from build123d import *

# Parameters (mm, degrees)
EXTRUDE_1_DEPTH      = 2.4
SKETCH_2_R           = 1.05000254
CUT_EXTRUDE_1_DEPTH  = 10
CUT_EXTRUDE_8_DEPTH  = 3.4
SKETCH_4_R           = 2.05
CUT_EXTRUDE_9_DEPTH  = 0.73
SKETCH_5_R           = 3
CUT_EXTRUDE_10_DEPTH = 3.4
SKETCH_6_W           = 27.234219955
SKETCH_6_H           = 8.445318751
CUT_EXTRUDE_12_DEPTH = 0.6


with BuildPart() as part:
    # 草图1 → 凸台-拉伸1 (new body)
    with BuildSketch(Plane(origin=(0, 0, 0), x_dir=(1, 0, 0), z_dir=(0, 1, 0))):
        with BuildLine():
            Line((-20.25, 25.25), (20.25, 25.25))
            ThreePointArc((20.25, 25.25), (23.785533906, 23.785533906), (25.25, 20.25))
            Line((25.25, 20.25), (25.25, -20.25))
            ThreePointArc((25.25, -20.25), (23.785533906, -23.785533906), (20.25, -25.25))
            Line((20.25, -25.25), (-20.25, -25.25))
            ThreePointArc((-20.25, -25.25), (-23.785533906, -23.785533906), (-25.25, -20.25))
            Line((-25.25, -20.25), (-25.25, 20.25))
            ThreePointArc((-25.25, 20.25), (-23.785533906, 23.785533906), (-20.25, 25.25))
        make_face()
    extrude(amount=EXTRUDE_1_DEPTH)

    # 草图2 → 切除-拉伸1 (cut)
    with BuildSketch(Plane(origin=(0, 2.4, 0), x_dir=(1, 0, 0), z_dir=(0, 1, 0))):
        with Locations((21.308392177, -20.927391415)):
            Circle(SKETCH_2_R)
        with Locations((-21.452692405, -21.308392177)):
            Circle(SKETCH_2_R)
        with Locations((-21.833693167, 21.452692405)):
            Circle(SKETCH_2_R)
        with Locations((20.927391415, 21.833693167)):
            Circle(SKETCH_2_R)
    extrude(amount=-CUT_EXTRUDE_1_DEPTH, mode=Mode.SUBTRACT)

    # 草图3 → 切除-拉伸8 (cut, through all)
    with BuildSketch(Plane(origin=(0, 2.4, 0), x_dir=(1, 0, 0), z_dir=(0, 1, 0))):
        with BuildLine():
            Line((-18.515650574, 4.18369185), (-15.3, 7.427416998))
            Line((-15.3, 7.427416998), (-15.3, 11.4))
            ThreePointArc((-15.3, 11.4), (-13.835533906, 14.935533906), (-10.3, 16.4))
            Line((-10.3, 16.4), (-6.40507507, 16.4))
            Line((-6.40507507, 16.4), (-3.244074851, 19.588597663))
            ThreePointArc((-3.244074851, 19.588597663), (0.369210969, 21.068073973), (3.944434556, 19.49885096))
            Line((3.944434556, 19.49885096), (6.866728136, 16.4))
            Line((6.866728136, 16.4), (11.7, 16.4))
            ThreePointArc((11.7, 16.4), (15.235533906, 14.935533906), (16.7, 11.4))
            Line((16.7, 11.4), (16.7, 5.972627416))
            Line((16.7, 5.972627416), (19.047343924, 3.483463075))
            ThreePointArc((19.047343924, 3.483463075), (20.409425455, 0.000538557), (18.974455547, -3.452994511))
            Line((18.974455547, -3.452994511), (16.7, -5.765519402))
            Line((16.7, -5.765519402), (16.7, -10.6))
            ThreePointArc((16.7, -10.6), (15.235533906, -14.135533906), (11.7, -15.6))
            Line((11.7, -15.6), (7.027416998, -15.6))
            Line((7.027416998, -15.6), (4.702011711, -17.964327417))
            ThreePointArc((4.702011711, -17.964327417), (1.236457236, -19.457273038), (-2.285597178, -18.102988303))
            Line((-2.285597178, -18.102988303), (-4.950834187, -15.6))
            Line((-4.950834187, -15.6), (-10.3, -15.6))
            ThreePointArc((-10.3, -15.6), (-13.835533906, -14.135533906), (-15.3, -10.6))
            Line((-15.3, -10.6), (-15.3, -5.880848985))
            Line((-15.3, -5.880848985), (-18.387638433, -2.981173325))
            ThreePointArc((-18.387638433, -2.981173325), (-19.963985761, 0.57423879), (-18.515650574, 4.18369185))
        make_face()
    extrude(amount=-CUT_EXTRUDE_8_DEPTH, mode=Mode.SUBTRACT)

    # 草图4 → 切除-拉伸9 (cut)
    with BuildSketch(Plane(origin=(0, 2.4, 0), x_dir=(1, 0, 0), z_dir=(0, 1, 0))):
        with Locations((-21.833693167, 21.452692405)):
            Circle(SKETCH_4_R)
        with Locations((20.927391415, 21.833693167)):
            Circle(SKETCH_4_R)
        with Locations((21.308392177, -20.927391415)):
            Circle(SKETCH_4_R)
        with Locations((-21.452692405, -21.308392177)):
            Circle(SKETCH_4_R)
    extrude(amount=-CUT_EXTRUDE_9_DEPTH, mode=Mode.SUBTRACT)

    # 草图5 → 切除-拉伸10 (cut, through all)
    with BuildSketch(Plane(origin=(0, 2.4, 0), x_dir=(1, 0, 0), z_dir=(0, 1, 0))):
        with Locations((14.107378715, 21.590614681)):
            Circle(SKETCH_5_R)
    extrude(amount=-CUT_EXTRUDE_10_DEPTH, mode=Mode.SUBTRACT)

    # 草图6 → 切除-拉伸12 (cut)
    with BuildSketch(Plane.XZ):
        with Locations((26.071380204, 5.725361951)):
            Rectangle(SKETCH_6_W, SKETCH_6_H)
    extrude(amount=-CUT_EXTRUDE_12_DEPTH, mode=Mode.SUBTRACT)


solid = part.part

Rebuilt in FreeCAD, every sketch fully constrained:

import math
import FreeCAD as App
import Part
import Sketcher
Q = App.Units.Quantity


def add_polygon(sketch, points):
    """Adds a closed chain of lines whose ends are joined by coincident constraints."""
    first, n = sketch.GeometryCount, len(points)
    for a, b in zip(points, points[1:] + points[:1]):
        sketch.addGeometry(Part.LineSegment(App.Vector(*a, 0), App.Vector(*b, 0)), False)
    for i in range(n):
        sketch.addConstraint(Sketcher.Constraint("Coincident", first + i, 2, first + (i + 1) % n, 1))

doc = App.newDocument("Part")
body = doc.addObject("PartDesign::Body", "Body")

# Sketch on XZ plane
sketch1 = body.newObject("Sketcher::SketchObject", "Sketch")
sketch1.AttachmentSupport = (doc.getObject("XZ_Plane"), [""])
sketch1.MapMode = "FlatFace"
sketch1.addGeometry([
    Part.LineSegment(App.Vector(20, -25, 0), App.Vector(-20, -25, 0)),  # 0
    Part.ArcOfCircle(Part.Circle(App.Vector(-20, -20, 0), App.Vector(0, 0, 1), 5), math.radians(180), math.radians(270)),  # 1
    Part.LineSegment(App.Vector(-25, -20, 0), App.Vector(-25, 20, 0)),  # 2
    Part.ArcOfCircle(Part.Circle(App.Vector(-20, 20, 0), App.Vector(0, 0, 1), 5), math.radians(90), math.radians(180)),  # 3
    Part.LineSegment(App.Vector(-20, 25, 0), App.Vector(20, 25, 0)),  # 4
    Part.ArcOfCircle(Part.Circle(App.Vector(20, 20, 0), App.Vector(0, 0, 1), 5), math.radians(0), math.radians(90)),  # 5
    Part.LineSegment(App.Vector(25, 20, 0), App.Vector(25, -20, 0)),  # 6
    Part.ArcOfCircle(Part.Circle(App.Vector(20, -20, 0), App.Vector(0, 0, 1), 5), math.radians(-90), math.radians(0)),  # 7
], False)
sketch1.addConstraint([
    Sketcher.Constraint("Tangent", 0, 2, 1, 2),
    Sketcher.Constraint("Tangent", 1, 1, 2, 1),
    Sketcher.Constraint("Tangent", 2, 2, 3, 2),
    Sketcher.Constraint("Tangent", 3, 1, 4, 1),
    Sketcher.Constraint("Tangent", 4, 2, 5, 2),
    Sketcher.Constraint("Tangent", 5, 1, 6, 1),
    Sketcher.Constraint("Tangent", 6, 2, 7, 2),
    Sketcher.Constraint("Tangent", 7, 1, 0, 1),
    Sketcher.Constraint("Horizontal", 0),
    Sketcher.Constraint("Vertical", 2),
    Sketcher.Constraint("Horizontal", 4),
    Sketcher.Constraint("Vertical", 6),
    Sketcher.Constraint("Equal", 1, 3),
    Sketcher.Constraint("Equal", 3, 5),
    Sketcher.Constraint("Equal", 5, 7),
    Sketcher.Constraint("Symmetric", 1, 3, 5, 3, -1, 1),
    Sketcher.Constraint("Equal", 4, 2),
    Sketcher.Constraint("Radius", 1, Q("5 mm")),
    Sketcher.Constraint("DistanceX", 0, 2, 0, 1, Q("40.5 mm")),
])
pad1 = body.newObject("PartDesign::Pad", "Pad")
pad1.Profile = sketch1
pad1.Length = 2.4
pad1.Reversed = True

# Sketch on XZ plane
sketch2 = body.newObject("Sketcher::SketchObject", "Sketch001")
sketch2.AttachmentSupport = (doc.getObject("XZ_Plane"), [""])
sketch2.MapMode = "FlatFace"
sketch2.AttachmentOffset = App.Placement(App.Vector(0, 0, -2.4), App.Rotation())
sketch2.addGeometry([
    Part.Circle(App.Vector(21.3, 20.9, 0), App.Vector(0, 0, 1), 1.1),
    Part.Circle(App.Vector(-21.5, 21.3, 0), App.Vector(0, 0, 1), 1.1),
    Part.Circle(App.Vector(-21.8, -21.5, 0), App.Vector(0, 0, 1), 1.1),
    Part.Circle(App.Vector(20.9, -21.8, 0), App.Vector(0, 0, 1), 1.1),
], False)
sketch2.addConstraint([
    Sketcher.Constraint("Equal", 0, 1),
    Sketcher.Constraint("Equal", 1, 2),
    Sketcher.Constraint("Equal", 2, 3),
    Sketcher.Constraint("Diameter", 0, Q("2.100005 mm")),
    Sketcher.Constraint("DistanceY", 0, 3, 1, 3, Q("0.381001 mm")),
    Sketcher.Constraint("DistanceX", 2, 3, 1, 3, Q("0.381001 mm")),
    Sketcher.Constraint("DistanceX", 3, 3, 0, 3, Q("0.381001 mm")),
    Sketcher.Constraint("DistanceY", 3, 3, 2, 3, Q("0.381001 mm")),
    Sketcher.Constraint("DistanceY", -1, 1, 0, 3, Q("20.927391 mm")),
    Sketcher.Constraint("DistanceX", -1, 1, 3, 3, Q("20.927391 mm")),
    Sketcher.Constraint("DistanceX", 1, 3, -1, 1, Q("21.452692 mm")),
    Sketcher.Constraint("DistanceY", 2, 3, -1, 1, Q("21.452692 mm")),
])
pocket1 = body.newObject("PartDesign::Pocket", "Pocket")
pocket1.Profile = sketch2
pocket1.Length = 10
pocket1.Reversed = True

# Sketch on XZ plane
sketch3 = body.newObject("Sketcher::SketchObject", "Sketch002")
sketch3.AttachmentSupport = (doc.getObject("XZ_Plane"), [""])
sketch3.MapMode = "FlatFace"
sketch3.AttachmentOffset = App.Placement(App.Vector(0, 0, -2.4), App.Rotation())
sketch3.addGeometry([
    Part.LineSegment(App.Vector(-15.3, -7.4, 0), App.Vector(-18.5, -4.2, 0)),  # 0
    Part.ArcOfCircle(Part.Circle(App.Vector(-15, -0.7, 0), App.Vector(0, 0, 1), 5), math.radians(133), math.radians(225)),  # 1
    Part.LineSegment(App.Vector(-18.4, 3, 0), App.Vector(-15.3, 5.9, 0)),  # 2
    Part.LineSegment(App.Vector(-15.3, 5.9, 0), App.Vector(-15.3, 10.6, 0)),  # 3
    Part.ArcOfCircle(Part.Circle(App.Vector(-10.3, 10.6, 0), App.Vector(0, 0, 1), 5), math.radians(90), math.radians(180)),  # 4
    Part.LineSegment(App.Vector(-10.3, 15.6, 0), App.Vector(-5, 15.6, 0)),  # 5
    Part.LineSegment(App.Vector(-5, 15.6, 0), App.Vector(-2.3, 18.1, 0)),  # 6
    Part.ArcOfCircle(Part.Circle(App.Vector(1.1, 14.5, 0), App.Vector(0, 0, 1), 5), math.radians(45), math.radians(133)),  # 7
    Part.LineSegment(App.Vector(4.7, 18, 0), App.Vector(7, 15.6, 0)),  # 8
    Part.LineSegment(App.Vector(7, 15.6, 0), App.Vector(11.7, 15.6, 0)),  # 9
    Part.ArcOfCircle(Part.Circle(App.Vector(11.7, 10.6, 0), App.Vector(0, 0, 1), 5), math.radians(0), math.radians(90)),  # 10
    Part.LineSegment(App.Vector(16.7, 10.6, 0), App.Vector(16.7, 5.8, 0)),  # 11
    Part.LineSegment(App.Vector(16.7, 5.8, 0), App.Vector(19, 3.5, 0)),  # 12
    Part.ArcOfCircle(Part.Circle(App.Vector(15.4, -0.1, 0), App.Vector(0, 0, 1), 5), math.radians(-43), math.radians(45)),  # 13
    Part.LineSegment(App.Vector(19, -3.5, 0), App.Vector(16.7, -6, 0)),  # 14
    Part.LineSegment(App.Vector(16.7, -6, 0), App.Vector(16.7, -11.4, 0)),  # 15
    Part.ArcOfCircle(Part.Circle(App.Vector(11.7, -11.4, 0), App.Vector(0, 0, 1), 5), math.radians(-90), math.radians(0)),  # 16
    Part.LineSegment(App.Vector(11.7, -16.4, 0), App.Vector(6.9, -16.4, 0)),  # 17
    Part.LineSegment(App.Vector(6.9, -16.4, 0), App.Vector(3.9, -19.5, 0)),  # 18
    Part.ArcOfCircle(Part.Circle(App.Vector(0.3, -16.1, 0), App.Vector(0, 0, 1), 5), math.radians(-135), math.radians(-43)),  # 19
    Part.LineSegment(App.Vector(-3.2, -19.6, 0), App.Vector(-6.4, -16.4, 0)),  # 20
    Part.LineSegment(App.Vector(-6.4, -16.4, 0), App.Vector(-10.3, -16.4, 0)),  # 21
    Part.ArcOfCircle(Part.Circle(App.Vector(-10.3, -11.4, 0), App.Vector(0, 0, 1), 5), math.radians(180), math.radians(270)),  # 22
    Part.LineSegment(App.Vector(-15.3, -11.4, 0), App.Vector(-15.3, -7.4, 0)),  # 23
], False)
sketch3.addConstraint([
    Sketcher.Constraint("Tangent", 0, 2, 1, 2),
    Sketcher.Constraint("Tangent", 1, 1, 2, 1),
    Sketcher.Constraint("Coincident", 2, 2, 3, 1),
    Sketcher.Constraint("Tangent", 3, 2, 4, 2),
    Sketcher.Constraint("Tangent", 4, 1, 5, 1),
    Sketcher.Constraint("Coincident", 5, 2, 6, 1),
    Sketcher.Constraint("Tangent", 6, 2, 7, 2),
    Sketcher.Constraint("Tangent", 7, 1, 8, 1),
    Sketcher.Constraint("Coincident", 8, 2, 9, 1),
    Sketcher.Constraint("Tangent", 9, 2, 10, 2),
    Sketcher.Constraint("Tangent", 10, 1, 11, 1),
    Sketcher.Constraint("Coincident", 11, 2, 12, 1),
    Sketcher.Constraint("Tangent", 12, 2, 13, 2),
    Sketcher.Constraint("Tangent", 13, 1, 14, 1),
    Sketcher.Constraint("Coincident", 14, 2, 15, 1),
    Sketcher.Constraint("Tangent", 15, 2, 16, 2),
    Sketcher.Constraint("Tangent", 16, 1, 17, 1),
    Sketcher.Constraint("Coincident", 17, 2, 18, 1),
    Sketcher.Constraint("Tangent", 18, 2, 19, 2),
    Sketcher.Constraint("Tangent", 19, 1, 20, 1),
    Sketcher.Constraint("Coincident", 20, 2, 21, 1),
    Sketcher.Constraint("Tangent", 21, 2, 22, 2),
    Sketcher.Constraint("Tangent", 22, 1, 23, 1),
    Sketcher.Constraint("Coincident", 23, 2, 0, 1),
    Sketcher.Constraint("Vertical", 3),
    Sketcher.Constraint("Horizontal", 5),
    Sketcher.Constraint("Horizontal", 9),
    Sketcher.Constraint("Vertical", 11),
    Sketcher.Constraint("Vertical", 15),
    Sketcher.Constraint("Horizontal", 17),
    Sketcher.Constraint("Horizontal", 21),
    Sketcher.Constraint("Vertical", 23),
    Sketcher.Constraint("Equal", 1, 4),
    Sketcher.Constraint("Equal", 4, 7),
    Sketcher.Constraint("Equal", 7, 10),
    Sketcher.Constraint("Equal", 10, 13),
    Sketcher.Constraint("Equal", 13, 16),
    Sketcher.Constraint("Equal", 16, 19),
    Sketcher.Constraint("Equal", 19, 22),
    Sketcher.Constraint("Parallel", 2, 6),
    Sketcher.Constraint("Parallel", 8, 12),
    Sketcher.Constraint("Parallel", 14, 18),
    Sketcher.Constraint("Parallel", 0, 20),
    Sketcher.Constraint("Horizontal", 4, 3, 10, 3),
    Sketcher.Constraint("Horizontal", 16, 3, 22, 3),
    Sketcher.Constraint("Vertical", 10, 3, 16, 3),
    Sketcher.Constraint("Vertical", 4, 3, 22, 3),
    Sketcher.Constraint("Radius", 1, Q("5 mm")),
    Sketcher.Constraint("DistanceX", 4, 3, 10, 3, Q("22 mm")),
    Sketcher.Constraint("DistanceY", 16, 3, 10, 3, Q("22 mm")),
    Sketcher.Constraint("DistanceX", 4, 3, -1, 1, Q("10.3 mm")),
    Sketcher.Constraint("DistanceY", -1, 1, 4, 3, Q("10.6 mm")),
    Sketcher.Constraint("DistanceX", 20, 2, 19, 1, Q("3.161 mm")),
    Sketcher.Constraint("DistanceX", 17, 2, 17, 1, Q("4.833272 mm")),
    Sketcher.Constraint("DistanceY", 3, 1, 3, 2, Q("4.719151 mm")),
    Sketcher.Constraint("DistanceY", 11, 2, 11, 1, Q("4.834481 mm")),
    Sketcher.Constraint("DistanceX", -1, 1, 13, 3, Q("15.409701 mm")),
    Sketcher.Constraint("Distance", 0, Q("4.567512 mm")),
    Sketcher.Constraint("DistanceX", 5, 1, 5, 2, Q("5.349166 mm")),
    Sketcher.Constraint("DistanceX", 9, 1, 9, 2, Q("4.672583 mm")),
    Sketcher.Constraint("DistanceX", 21, 2, 21, 1, Q("3.894925 mm")),
    Sketcher.Constraint("DistanceY", 15, 2, 15, 1, Q("5.427373 mm")),
    Sketcher.Constraint("DistanceY", 23, 1, 23, 2, Q("3.972583 mm")),
    Sketcher.Constraint("DistanceX", 0, 2, -1, 1, Q("18.515651 mm")),
])
pocket2 = body.newObject("PartDesign::Pocket", "Pocket001")
pocket2.Profile = sketch3
pocket2.Type = "ThroughAll"
pocket2.Reversed = True

# Sketch on XZ plane
sketch4 = body.newObject("Sketcher::SketchObject", "Sketch003")
sketch4.AttachmentSupport = (doc.getObject("XZ_Plane"), [""])
sketch4.MapMode = "FlatFace"
sketch4.AttachmentOffset = App.Placement(App.Vector(0, 0, -2.4), App.Rotation())
sketch4.addGeometry([
    Part.Circle(App.Vector(-21.8, -21.5, 0), App.Vector(0, 0, 1), 2),
    Part.Circle(App.Vector(20.9, -21.8, 0), App.Vector(0, 0, 1), 2),
    Part.Circle(App.Vector(21.3, 20.9, 0), App.Vector(0, 0, 1), 2),
    Part.Circle(App.Vector(-21.5, 21.3, 0), App.Vector(0, 0, 1), 2),
], False)
sketch4.addConstraint([
    Sketcher.Constraint("Equal", 0, 1),
    Sketcher.Constraint("Equal", 1, 2),
    Sketcher.Constraint("Equal", 2, 3),
    Sketcher.Constraint("Diameter", 0, Q("4.1 mm")),
    Sketcher.Constraint("DistanceY", 1, 3, 0, 3, Q("0.381001 mm")),
    Sketcher.Constraint("DistanceX", 1, 3, 2, 3, Q("0.381001 mm")),
    Sketcher.Constraint("DistanceX", 0, 3, 3, 3, Q("0.381001 mm")),
    Sketcher.Constraint("DistanceY", 2, 3, 3, 3, Q("0.381001 mm")),
    Sketcher.Constraint("DistanceX", -1, 1, 1, 3, Q("20.927391 mm")),
    Sketcher.Constraint("DistanceY", -1, 1, 2, 3, Q("20.927391 mm")),
    Sketcher.Constraint("DistanceX", 0, 3, -1, 1, Q("21.833693 mm")),
    Sketcher.Constraint("DistanceY", 0, 3, -1, 1, Q("21.452692 mm")),
])
pocket3 = body.newObject("PartDesign::Pocket", "Pocket002")
pocket3.Profile = sketch4
pocket3.Length = 0.73
pocket3.Reversed = True

# Sketch on XZ plane
sketch5 = body.newObject("Sketcher::SketchObject", "Sketch004")
sketch5.AttachmentSupport = (doc.getObject("XZ_Plane"), [""])
sketch5.MapMode = "FlatFace"
sketch5.AttachmentOffset = App.Placement(App.Vector(0, 0, -2.4), App.Rotation())
sketch5.addGeometry(Part.Circle(App.Vector(14.1, -21.6, 0), App.Vector(0, 0, 1), 3), False)
sketch5.addConstraint([
    Sketcher.Constraint("Diameter", 0, Q("6 mm")),
    Sketcher.Constraint("DistanceX", -1, 1, 0, 3, Q("14.107379 mm")),
    Sketcher.Constraint("DistanceY", 0, 3, -1, 1, Q("21.590615 mm")),
])
pocket4 = body.newObject("PartDesign::Pocket", "Pocket003")
pocket4.Profile = sketch5
pocket4.Type = "ThroughAll"
pocket4.Reversed = True

# Sketch on XZ plane
sketch6 = body.newObject("Sketcher::SketchObject", "Sketch005")
sketch6.AttachmentSupport = (doc.getObject("XZ_Plane"), [""])
sketch6.MapMode = "FlatFace"
add_polygon(sketch6, [(12, 10), (12, 2), (40, 2), (40, 10)])  # lines 0-3
sketch6.addConstraint([
    Sketcher.Constraint("Vertical", 0),
    Sketcher.Constraint("Horizontal", 1),
    Sketcher.Constraint("Vertical", 2),
    Sketcher.Constraint("Horizontal", 3),
    Sketcher.Constraint("DistanceX", 1, 1, 1, 2, Q("27.23422 mm")),
    Sketcher.Constraint("DistanceY", 0, 2, 0, 1, Q("8.445319 mm")),
    Sketcher.Constraint("DistanceX", -1, 1, 0, 2, Q("12.45427 mm")),
    Sketcher.Constraint("DistanceY", -1, 1, 2, 2, Q("9.948021 mm")),
])
pocket5 = body.newObject("PartDesign::Pocket", "Pocket004")
pocket5.Profile = sketch6
pocket5.Length = 0.6

doc.recompute()
